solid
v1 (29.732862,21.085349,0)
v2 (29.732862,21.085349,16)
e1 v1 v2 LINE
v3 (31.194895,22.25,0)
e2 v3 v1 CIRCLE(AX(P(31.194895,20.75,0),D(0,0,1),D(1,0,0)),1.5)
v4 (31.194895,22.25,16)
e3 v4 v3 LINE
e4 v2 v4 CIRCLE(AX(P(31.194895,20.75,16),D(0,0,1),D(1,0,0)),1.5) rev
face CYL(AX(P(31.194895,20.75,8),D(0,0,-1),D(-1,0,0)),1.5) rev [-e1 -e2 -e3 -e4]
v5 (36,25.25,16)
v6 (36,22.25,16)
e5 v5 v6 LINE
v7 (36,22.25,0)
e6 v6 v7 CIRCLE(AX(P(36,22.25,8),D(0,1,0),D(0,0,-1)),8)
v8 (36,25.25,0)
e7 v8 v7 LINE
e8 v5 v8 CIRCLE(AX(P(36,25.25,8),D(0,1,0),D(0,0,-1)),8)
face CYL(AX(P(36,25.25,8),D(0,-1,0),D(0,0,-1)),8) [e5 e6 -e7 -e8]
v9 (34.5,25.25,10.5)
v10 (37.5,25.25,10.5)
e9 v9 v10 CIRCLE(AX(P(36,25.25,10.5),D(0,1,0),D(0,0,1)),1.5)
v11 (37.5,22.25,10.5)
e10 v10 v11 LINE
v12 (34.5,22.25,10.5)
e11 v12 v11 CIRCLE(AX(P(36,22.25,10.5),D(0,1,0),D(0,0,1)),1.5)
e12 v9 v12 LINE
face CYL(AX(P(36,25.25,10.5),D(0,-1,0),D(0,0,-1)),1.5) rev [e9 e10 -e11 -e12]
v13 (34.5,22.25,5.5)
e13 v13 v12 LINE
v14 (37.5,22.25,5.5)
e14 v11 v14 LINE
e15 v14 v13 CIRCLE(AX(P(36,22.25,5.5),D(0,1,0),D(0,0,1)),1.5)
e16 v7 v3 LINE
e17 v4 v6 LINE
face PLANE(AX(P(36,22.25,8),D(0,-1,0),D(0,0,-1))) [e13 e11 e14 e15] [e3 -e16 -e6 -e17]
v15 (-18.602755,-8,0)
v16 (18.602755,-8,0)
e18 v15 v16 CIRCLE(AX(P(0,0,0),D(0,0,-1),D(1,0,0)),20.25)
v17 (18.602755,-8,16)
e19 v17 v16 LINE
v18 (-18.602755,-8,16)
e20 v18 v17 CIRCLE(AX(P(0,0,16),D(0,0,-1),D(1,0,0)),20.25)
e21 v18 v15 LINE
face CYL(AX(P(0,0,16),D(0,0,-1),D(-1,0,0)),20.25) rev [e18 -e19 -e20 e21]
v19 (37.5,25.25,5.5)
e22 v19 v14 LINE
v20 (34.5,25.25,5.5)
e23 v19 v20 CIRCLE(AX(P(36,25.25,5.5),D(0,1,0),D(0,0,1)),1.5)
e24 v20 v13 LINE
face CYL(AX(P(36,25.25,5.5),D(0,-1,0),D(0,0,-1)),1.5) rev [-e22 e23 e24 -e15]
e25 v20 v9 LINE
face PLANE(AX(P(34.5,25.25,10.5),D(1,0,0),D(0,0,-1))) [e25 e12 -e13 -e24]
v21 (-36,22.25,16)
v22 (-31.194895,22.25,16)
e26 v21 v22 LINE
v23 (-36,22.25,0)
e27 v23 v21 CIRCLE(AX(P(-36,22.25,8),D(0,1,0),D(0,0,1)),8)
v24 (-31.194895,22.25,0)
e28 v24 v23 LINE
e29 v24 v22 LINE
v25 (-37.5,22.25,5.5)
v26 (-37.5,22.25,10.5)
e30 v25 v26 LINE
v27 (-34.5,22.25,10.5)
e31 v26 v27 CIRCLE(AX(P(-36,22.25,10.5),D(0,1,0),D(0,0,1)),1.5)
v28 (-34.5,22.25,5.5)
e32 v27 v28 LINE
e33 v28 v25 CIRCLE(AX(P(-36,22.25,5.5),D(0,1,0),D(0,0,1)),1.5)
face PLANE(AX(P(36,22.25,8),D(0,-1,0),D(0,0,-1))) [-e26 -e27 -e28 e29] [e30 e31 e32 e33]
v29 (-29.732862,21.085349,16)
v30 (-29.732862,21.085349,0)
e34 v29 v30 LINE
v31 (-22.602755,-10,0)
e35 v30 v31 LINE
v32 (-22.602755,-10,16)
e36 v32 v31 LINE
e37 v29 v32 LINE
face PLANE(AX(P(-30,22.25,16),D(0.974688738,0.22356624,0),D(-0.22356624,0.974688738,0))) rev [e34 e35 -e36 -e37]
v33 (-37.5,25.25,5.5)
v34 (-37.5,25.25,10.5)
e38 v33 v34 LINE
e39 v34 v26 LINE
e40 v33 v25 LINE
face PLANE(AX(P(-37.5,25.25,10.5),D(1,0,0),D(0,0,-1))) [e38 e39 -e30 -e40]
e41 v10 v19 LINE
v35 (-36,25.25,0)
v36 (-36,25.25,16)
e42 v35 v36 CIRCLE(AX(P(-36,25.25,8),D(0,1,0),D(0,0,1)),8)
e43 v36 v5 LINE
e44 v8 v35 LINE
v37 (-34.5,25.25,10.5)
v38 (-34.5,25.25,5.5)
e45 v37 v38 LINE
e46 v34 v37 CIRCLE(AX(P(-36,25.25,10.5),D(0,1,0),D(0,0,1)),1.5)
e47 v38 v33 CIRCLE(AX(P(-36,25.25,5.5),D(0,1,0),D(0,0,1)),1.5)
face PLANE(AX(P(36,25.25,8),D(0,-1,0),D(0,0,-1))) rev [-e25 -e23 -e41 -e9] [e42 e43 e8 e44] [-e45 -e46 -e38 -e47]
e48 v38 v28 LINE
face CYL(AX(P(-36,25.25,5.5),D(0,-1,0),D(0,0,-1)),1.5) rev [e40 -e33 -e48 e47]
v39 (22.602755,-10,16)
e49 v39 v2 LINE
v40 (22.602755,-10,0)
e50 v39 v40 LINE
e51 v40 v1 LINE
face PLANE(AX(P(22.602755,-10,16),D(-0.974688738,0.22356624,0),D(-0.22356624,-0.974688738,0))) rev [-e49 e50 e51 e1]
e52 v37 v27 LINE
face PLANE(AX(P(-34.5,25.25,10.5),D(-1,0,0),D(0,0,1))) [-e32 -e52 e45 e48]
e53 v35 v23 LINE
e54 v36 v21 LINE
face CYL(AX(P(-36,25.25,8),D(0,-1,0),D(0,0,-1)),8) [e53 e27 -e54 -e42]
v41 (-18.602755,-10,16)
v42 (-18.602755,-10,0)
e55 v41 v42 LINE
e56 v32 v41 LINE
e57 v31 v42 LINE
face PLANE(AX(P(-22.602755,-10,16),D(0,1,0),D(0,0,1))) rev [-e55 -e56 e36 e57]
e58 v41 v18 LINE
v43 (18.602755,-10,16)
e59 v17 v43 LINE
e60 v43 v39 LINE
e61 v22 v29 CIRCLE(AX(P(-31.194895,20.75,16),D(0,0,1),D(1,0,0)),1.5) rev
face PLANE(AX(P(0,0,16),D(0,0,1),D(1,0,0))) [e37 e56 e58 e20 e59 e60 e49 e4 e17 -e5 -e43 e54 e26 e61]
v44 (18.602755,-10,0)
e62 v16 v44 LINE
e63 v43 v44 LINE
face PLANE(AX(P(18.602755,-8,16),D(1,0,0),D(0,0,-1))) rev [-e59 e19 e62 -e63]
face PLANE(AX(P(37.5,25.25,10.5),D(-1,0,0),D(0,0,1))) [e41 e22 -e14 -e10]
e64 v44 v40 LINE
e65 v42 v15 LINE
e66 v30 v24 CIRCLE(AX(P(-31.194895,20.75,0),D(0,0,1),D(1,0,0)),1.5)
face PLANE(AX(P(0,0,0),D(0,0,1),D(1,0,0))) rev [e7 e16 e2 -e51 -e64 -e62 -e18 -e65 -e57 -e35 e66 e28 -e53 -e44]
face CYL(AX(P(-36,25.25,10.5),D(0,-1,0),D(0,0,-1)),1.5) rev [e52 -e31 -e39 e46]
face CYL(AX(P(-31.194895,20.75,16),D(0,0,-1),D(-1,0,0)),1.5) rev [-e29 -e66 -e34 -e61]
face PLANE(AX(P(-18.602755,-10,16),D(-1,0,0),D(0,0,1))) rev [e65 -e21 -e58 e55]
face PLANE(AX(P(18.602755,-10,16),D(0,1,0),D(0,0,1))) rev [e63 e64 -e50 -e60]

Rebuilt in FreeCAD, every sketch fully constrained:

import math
import FreeCAD as App
import Part
import Sketcher
from FreeCAD import Vector
Q = App.Units.Quantity


def edges_at(feature, points):
    """Names of the edges that pass closest to the given points."""
    edges = feature.Shape.Edges
    near = lambda p: min(range(len(edges)), key=lambda i: edges[i].distToShape(Part.Vertex(*p))[0])
    return sorted({f"Edge{near(p) + 1}" for p in points})

doc = App.newDocument("Part")
params = doc.addObject("Spreadsheet::Sheet", "Params")
for row, (alias, value) in enumerate([
    ("sketch1_width", "4 mm"),
    ("sketch1_width2", "60 mm"),
    ("sketch1_height", "2 mm"),
    ("sketch1_radius", "20.25 mm"),
    ("pad1_length", "16 mm"),
    ("sketch2_radius", "8 mm"),
    ("sketch2_radius2", "1.5 mm"),
    ("sketch2_width", "72 mm"),
    ("sketch2_height", "5 mm"),
    ("pad2_length", "3 mm"),
    ("fillet_radius", "1.5 mm"),
], start=1):
    params.set(f"A{row}", alias)
    params.set(f"B{row}", "=" + value)
    params.setAlias(f"B{row}", alias)

body = doc.addObject("PartDesign::Body", "Body")

sketch1 = body.newObject("Sketcher::SketchObject", "Sketch")
sketch1.AttachmentSupport = (doc.getObject("XY_Plane"), [""])
sketch1.MapMode = "FlatFace"
sketch1.addGeometry(Part.LineSegment(Vector(18.6, -8, 0), Vector(18.6, -10, 0)), False)
sketch1.addGeometry(Part.LineSegment(Vector(18.6, -10, 0), Vector(22.6, -10, 0)), False)
sketch1.addGeometry(Part.LineSegment(Vector(22.6, -10, 0), Vector(30, 22.2, 0)), False)
sketch1.addGeometry(Part.LineSegment(Vector(30, 22.2, 0), Vector(-30, 22.2, 0)), False)
sketch1.addGeometry(Part.LineSegment(Vector(-30, 22.2, 0), Vector(-22.6, -10, 0)), False)
sketch1.addGeometry(Part.LineSegment(Vector(-22.6, -10, 0), Vector(-18.6, -10, 0)), False)
sketch1.addGeometry(Part.LineSegment(Vector(-18.6, -10, 0), Vector(-18.6, -8, 0)), False)
sketch1.addGeometry(Part.ArcOfCircle(Part.Circle(Vector(0, 0, 0), Vector(0, 0, 1), 20.2), math.radians(-23), math.radians(203)), False)
sketch1.addConstraint(Sketcher.Constraint("Coincident", 0, 2, 1, 1))
sketch1.addConstraint(Sketcher.Constraint("Coincident", 1, 2, 2, 1))
sketch1.addConstraint(Sketcher.Constraint("Coincident", 2, 2, 3, 1))
sketch1.addConstraint(Sketcher.Constraint("Coincident", 3, 2, 4, 1))
sketch1.addConstraint(Sketcher.Constraint("Coincident", 4, 2, 5, 1))
sketch1.addConstraint(Sketcher.Constraint("Coincident", 5, 2, 6, 1))
sketch1.addConstraint(Sketcher.Constraint("Coincident", 6, 2, 7, 2))
sketch1.addConstraint(Sketcher.Constraint("Coincident", 7, 1, 0, 1))
sketch1.addConstraint(Sketcher.Constraint("Vertical", 0))
sketch1.addConstraint(Sketcher.Constraint("Horizontal", 1))
sketch1.addConstraint(Sketcher.Constraint("Horizontal", 3))
sketch1.addConstraint(Sketcher.Constraint("Horizontal", 5))
sketch1.addConstraint(Sketcher.Constraint("Vertical", 6))
sketch1.addConstraint(Sketcher.Constraint("Coincident", 7, 3, -1, 1))
sketch1.addConstraint(Sketcher.Constraint("Symmetric", 1, 2, 4, 2, -2))
sketch1.addConstraint(Sketcher.Constraint("Horizontal", 6, 2, 7, 1))
sketch1.addConstraint(Sketcher.Constraint("Equal", 2, 4))
sketch1.addConstraint(Sketcher.Constraint("DistanceX", 1, 1, 1, 2, Q("4 mm")))
sketch1.addConstraint(Sketcher.Constraint("DistanceX", 3, 2, 3, 1, Q("60 mm")))
sketch1.addConstraint(Sketcher.Constraint("DistanceY", 0, 2, 0, 1, Q("2 mm")))
sketch1.addConstraint(Sketcher.Constraint("Radius", 7, Q("20.25 mm")))
sketch1.addConstraint(Sketcher.Constraint("DistanceY", 0, 2, -1, 1, Q("10 mm")))
sketch1.addConstraint(Sketcher.Constraint("DistanceY", -1, 1, 2, 2, Q("22.25 mm")))
sketch1.setExpression("Constraints[17]", "Params.sketch1_width")
sketch1.setExpression("Constraints[18]", "Params.sketch1_width2")
sketch1.setExpression("Constraints[19]", "Params.sketch1_height")
sketch1.setExpression("Constraints[20]", "Params.sketch1_radius")
pad1 = body.newObject("PartDesign::Pad", "Pad")
pad1.Profile = sketch1
pad1.setExpression("Length", "Params.pad1_length")

sketch2 = body.newObject("Sketcher::SketchObject", "Sketch001")
sketch2.AttachmentSupport = (doc.getObject("XZ_Plane"), [""])
sketch2.MapMode = "FlatFace"
sketch2.AttachmentOffset = App.Placement(Vector(0, 0, -22.25), App.Rotation())
sketch2.addGeometry(Part.ArcOfCircle(Part.Circle(Vector(-36, 8, 0), Vector(0, 0, 1), 8), math.radians(90), math.radians(270)), False)
sketch2.addGeometry(Part.LineSegment(Vector(-36, 16, 0), Vector(36, 16, 0)), False)
sketch2.addGeometry(Part.ArcOfCircle(Part.Circle(Vector(36, 8, 0), Vector(0, 0, 1), 8), math.radians(-90), math.radians(90)), False)
sketch2.addGeometry(Part.LineSegment(Vector(36, 0, 0), Vector(-36, 0, 0)), False)
sketch2.addGeometry(Part.ArcOfCircle(Part.Circle(Vector(-36, 10.5, 0), Vector(0, 0, 1), 1.5), math.radians(0), math.radians(180)), False)
sketch2.addGeometry(Part.LineSegment(Vector(-37.5, 10.5, 0), Vector(-37.5, 5.5, 0)), False)
sketch2.addGeometry(Part.ArcOfCircle(Part.Circle(Vector(-36, 5.5, 0), Vector(0, 0, 1), 1.5), math.radians(180), math.radians(360)), False)
sketch2.addGeometry(Part.LineSegment(Vector(-34.5, 5.5, 0), Vector(-34.5, 10.5, 0)), False)
sketch2.addGeometry(Part.ArcOfCircle(Part.Circle(Vector(36, 10.5, 0), Vector(0, 0, 1), 1.5), math.radians(0), math.radians(180)), False)
sketch2.addGeometry(Part.LineSegment(Vector(34.5, 10.5, 0), Vector(34.5, 5.5, 0)), False)
sketch2.addGeometry(Part.ArcOfCircle(Part.Circle(Vector(36, 5.5, 0), Vector(0, 0, 1), 1.5), math.radians(180), math.radians(360)), False)
sketch2.addGeometry(Part.LineSegment(Vector(37.5, 5.5, 0), Vector(37.5, 10.5, 0)), False)
sketch2.addConstraint(Sketcher.Constraint("Tangent", 0, 1, 1, 1))
sketch2.addConstraint(Sketcher.Constraint("Tangent", 1, 2, 2, 2))
sketch2.addConstraint(Sketcher.Constraint("Tangent", 2, 1, 3, 1))
sketch2.addConstraint(Sketcher.Constraint("Tangent", 3, 2, 0, 2))
sketch2.addConstraint(Sketcher.Constraint("Tangent", 4, 2, 5, 1))
sketch2.addConstraint(Sketcher.Constraint("Tangent", 5, 2, 6, 1))
sketch2.addConstraint(Sketcher.Constraint("Tangent", 6, 2, 7, 1))
sketch2.addConstraint(Sketcher.Constraint("Tangent", 7, 2, 4, 1))
sketch2.addConstraint(Sketcher.Constraint("Tangent", 8, 2, 9, 1))
sketch2.addConstraint(Sketcher.Constraint("Tangent", 9, 2, 10, 1))
sketch2.addConstraint(Sketcher.Constraint("Tangent", 10, 2, 11, 1))
sketch2.addConstraint(Sketcher.Constraint("Tangent", 11, 2, 8, 1))
sketch2.addConstraint(Sketcher.Constraint("Horizontal", 1))
sketch2.addConstraint(Sketcher.Constraint("Horizontal", 3))
sketch2.addConstraint(Sketcher.Constraint("Vertical", 5))
sketch2.addConstraint(Sketcher.Constraint("Vertical", 7))
sketch2.addConstraint(Sketcher.Constraint("Vertical", 9))
sketch2.addConstraint(Sketcher.Constraint("Vertical", 11))
sketch2.addConstraint(Sketcher.Constraint("Equal", 6, 8))
sketch2.addConstraint(Sketcher.Constraint("Symmetric", 2, 1, 3, 2, -1, 1))
sketch2.addConstraint(Sketcher.Constraint("Symmetric", 4, 3, 8, 3, -2))
sketch2.addConstraint(Sketcher.Constraint("Horizontal", 6, 3, 10, 3))
sketch2.addConstraint(Sketcher.Constraint("Vertical", 0, 3, 4, 3))
sketch2.addConstraint(Sketcher.Constraint("Radius", 0, Q("8 mm")))
sketch2.addConstraint(Sketcher.Constraint("Radius", 4, Q("1.5 mm")))
sketch2.addConstraint(Sketcher.Constraint("DistanceX", 1, 1, 1, 2, Q("72 mm")))
sketch2.addConstraint(Sketcher.Constraint("DistanceY", 5, 2, 5, 1, Q("5 mm")))
sketch2.addConstraint(Sketcher.Constraint("DistanceY", -1, 1, 4, 3, Q("10.5 mm")))
sketch2.setExpression("Constraints[23]", "Params.sketch2_radius")
sketch2.setExpression("Constraints[24]", "Params.sketch2_radius2")
sketch2.setExpression("Constraints[25]", "Params.sketch2_width")
sketch2.setExpression("Constraints[26]", "Params.sketch2_height")
pad2 = body.newObject("PartDesign::Pad", "Pad001")
pad2.Profile = sketch2
pad2.setExpression("Length", "Params.pad2_length")
pad2.Reversed = True
doc.recompute()

fillet = body.newObject("PartDesign::Fillet", "Fillet")
fillet.Base = (pad2, edges_at(pad2, [(-30, 22.25, 8), (30, 22.25, 8)]))
fillet.setExpression("Radius", "Params.fillet_radius")

doc.recompute()
